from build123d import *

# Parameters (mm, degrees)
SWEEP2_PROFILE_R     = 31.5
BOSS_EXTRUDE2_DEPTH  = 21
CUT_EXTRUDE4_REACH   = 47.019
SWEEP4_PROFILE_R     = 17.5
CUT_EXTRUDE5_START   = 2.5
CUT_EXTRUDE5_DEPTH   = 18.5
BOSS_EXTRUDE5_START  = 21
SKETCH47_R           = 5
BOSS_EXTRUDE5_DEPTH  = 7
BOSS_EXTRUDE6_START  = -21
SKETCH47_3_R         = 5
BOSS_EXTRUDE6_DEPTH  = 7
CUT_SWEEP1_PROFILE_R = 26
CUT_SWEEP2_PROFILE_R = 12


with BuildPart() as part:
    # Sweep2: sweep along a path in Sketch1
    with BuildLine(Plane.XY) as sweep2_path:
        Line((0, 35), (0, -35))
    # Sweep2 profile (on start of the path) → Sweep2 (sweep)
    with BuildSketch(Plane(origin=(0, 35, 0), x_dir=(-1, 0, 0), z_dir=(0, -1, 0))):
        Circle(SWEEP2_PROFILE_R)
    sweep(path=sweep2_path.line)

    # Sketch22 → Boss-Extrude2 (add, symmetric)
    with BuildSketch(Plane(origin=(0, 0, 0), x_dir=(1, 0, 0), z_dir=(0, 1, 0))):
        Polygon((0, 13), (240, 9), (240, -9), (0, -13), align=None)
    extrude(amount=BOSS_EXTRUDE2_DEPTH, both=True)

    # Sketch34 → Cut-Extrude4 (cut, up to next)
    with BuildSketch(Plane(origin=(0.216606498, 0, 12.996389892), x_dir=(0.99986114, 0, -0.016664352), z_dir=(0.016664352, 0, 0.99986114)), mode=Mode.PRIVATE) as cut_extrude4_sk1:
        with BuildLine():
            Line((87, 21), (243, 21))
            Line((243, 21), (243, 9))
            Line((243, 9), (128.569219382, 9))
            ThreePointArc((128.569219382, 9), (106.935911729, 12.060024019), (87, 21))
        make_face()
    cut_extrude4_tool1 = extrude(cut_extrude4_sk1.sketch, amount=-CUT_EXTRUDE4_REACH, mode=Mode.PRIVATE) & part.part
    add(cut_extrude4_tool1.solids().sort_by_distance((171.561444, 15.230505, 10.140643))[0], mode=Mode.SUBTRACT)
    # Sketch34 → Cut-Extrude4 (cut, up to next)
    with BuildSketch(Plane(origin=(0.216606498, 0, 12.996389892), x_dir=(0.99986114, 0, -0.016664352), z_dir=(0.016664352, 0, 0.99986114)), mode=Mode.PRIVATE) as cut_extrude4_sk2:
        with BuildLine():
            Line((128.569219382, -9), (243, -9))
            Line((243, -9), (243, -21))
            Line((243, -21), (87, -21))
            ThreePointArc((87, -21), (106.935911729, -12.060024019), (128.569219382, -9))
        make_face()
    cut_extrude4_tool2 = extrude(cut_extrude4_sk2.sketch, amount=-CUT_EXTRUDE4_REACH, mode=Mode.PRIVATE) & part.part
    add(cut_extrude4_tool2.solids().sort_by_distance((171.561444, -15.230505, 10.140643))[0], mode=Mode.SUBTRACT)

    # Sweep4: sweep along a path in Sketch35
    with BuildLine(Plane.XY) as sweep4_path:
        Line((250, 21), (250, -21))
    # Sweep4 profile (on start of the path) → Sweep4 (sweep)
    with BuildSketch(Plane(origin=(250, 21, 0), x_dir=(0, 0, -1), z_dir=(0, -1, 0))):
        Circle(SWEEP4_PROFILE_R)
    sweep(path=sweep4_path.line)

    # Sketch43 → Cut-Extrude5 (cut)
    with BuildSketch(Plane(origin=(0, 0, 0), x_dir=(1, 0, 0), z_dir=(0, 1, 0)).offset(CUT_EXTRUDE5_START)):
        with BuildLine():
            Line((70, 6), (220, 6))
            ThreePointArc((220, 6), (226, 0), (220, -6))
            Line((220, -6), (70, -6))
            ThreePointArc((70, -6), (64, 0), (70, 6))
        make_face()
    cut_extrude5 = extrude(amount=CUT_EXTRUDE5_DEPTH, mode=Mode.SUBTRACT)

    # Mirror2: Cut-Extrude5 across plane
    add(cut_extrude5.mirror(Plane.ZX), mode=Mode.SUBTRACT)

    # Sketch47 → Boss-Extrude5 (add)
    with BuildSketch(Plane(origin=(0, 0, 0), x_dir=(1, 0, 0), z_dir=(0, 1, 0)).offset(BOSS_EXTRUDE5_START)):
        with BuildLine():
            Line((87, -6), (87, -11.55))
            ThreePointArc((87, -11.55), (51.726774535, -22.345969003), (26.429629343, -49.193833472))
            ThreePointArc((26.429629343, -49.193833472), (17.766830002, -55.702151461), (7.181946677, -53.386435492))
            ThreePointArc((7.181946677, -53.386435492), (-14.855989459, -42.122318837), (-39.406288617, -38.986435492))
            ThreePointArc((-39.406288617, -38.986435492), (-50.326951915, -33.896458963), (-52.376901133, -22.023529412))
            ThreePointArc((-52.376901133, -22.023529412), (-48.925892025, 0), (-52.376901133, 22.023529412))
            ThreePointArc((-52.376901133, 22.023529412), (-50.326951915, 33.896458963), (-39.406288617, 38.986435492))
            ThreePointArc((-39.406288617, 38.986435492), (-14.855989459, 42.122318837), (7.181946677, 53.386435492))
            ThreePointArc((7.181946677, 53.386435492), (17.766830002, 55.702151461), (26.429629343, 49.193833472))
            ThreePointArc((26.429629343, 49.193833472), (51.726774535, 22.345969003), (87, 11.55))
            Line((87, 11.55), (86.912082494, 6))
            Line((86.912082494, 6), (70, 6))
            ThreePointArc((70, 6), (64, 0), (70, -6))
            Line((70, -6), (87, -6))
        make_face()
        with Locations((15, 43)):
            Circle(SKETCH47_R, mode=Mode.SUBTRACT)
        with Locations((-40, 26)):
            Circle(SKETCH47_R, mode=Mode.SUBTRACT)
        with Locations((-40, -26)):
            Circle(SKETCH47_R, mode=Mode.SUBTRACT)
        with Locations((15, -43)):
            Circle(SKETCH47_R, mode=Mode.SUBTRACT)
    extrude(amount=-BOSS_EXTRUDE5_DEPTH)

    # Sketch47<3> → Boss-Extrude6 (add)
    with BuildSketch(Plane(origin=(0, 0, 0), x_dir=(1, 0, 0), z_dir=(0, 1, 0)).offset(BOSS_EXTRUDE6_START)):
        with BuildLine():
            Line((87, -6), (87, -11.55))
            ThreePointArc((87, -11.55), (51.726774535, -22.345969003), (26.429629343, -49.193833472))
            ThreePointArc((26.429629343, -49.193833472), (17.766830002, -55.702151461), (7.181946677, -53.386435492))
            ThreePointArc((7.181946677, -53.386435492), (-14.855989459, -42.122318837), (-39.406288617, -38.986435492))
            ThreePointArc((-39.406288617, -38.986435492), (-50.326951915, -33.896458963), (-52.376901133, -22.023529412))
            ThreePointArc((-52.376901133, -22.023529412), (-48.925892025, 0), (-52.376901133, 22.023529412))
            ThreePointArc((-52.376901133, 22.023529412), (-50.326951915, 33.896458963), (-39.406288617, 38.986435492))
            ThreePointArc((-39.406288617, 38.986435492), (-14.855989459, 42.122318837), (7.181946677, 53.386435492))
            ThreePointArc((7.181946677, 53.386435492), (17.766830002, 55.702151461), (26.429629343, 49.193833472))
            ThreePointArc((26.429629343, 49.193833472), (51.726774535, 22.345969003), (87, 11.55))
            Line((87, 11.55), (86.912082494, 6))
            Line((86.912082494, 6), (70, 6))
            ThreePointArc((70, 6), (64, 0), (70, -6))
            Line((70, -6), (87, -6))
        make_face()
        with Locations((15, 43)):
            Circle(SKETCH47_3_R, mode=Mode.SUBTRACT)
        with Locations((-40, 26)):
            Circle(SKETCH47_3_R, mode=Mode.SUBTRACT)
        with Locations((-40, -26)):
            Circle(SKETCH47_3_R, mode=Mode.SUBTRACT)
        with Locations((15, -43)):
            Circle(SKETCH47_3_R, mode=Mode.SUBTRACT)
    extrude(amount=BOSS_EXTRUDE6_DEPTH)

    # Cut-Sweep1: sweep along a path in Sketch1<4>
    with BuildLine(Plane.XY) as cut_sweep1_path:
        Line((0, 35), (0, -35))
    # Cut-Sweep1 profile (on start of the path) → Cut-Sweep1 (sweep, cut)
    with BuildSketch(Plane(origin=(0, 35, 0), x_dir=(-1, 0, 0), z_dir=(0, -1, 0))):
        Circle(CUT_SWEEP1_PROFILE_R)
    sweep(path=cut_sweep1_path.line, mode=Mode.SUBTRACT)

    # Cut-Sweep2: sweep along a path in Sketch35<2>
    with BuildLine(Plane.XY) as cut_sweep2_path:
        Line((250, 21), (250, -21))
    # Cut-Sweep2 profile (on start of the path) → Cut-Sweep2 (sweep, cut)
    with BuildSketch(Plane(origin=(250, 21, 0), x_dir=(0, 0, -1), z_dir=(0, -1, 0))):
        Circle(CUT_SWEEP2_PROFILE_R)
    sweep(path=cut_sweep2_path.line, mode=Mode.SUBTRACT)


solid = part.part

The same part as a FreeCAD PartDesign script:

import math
import FreeCAD as App
import Part
import Sketcher

doc = App.newDocument("Part")
body = doc.addObject("PartDesign::Body", "Body")

# Sketch on XZ plane
sketch1 = doc.addObject("Sketcher::SketchObject", "Sketch")
body.addObject(sketch1)
sketch1.AttachmentSupport = (doc.XZ_Plane, [""])
sketch1.MapMode = "FlatFace"
sketch1.AttachmentOffset = App.Placement(App.Vector(0, 0, -35), App.Rotation())
sketch1.addGeometry(Part.Circle(App.Vector(0, 0, 0), App.Vector(0, 0, 1), 32), False)
sketch1.addConstraint([
    Sketcher.Constraint("Coincident", 0, 3, -1, 1),
    Sketcher.Constraint("Diameter", 0, 63.0),
])

# Sketch on XY plane
sketch2 = doc.addObject("Sketcher::SketchObject", "Sketch001")
body.addObject(sketch2)
sketch2.AttachmentSupport = (doc.XY_Plane, [""])
sketch2.MapMode = "FlatFace"
sketch2.addGeometry(Part.LineSegment(App.Vector(0, 35, 0), App.Vector(0, -35, 0)), False)
sketch2.addConstraint([
    Sketcher.Constraint("Vertical", 0),
    Sketcher.Constraint("Symmetric", 0, 1, 0, 2, -1, 1),
    Sketcher.Constraint("DistanceY", 0, 2, 0, 1, 70.0),
])
doc.recompute()

additivepipe = doc.addObject("PartDesign::AdditivePipe", "AdditivePipe")
body.addObject(additivepipe)
additivepipe.Profile = sketch1
additivepipe.Spine = (sketch2, ["Edge1"])

# Sketch on XZ plane
sketch3 = doc.addObject("Sketcher::SketchObject", "Sketch002")
body.addObject(sketch3)
sketch3.AttachmentSupport = (doc.XZ_Plane, [""])
sketch3.MapMode = "FlatFace"
sketch3.addGeometry([
    Part.LineSegment(App.Vector(240, -9, 0), App.Vector(0, -13, 0)),
    Part.LineSegment(App.Vector(0, -13, 0), App.Vector(0, 13, 0)),
    Part.LineSegment(App.Vector(0, 13, 0), App.Vector(240, 9, 0)),
    Part.LineSegment(App.Vector(240, 9, 0), App.Vector(240, -9, 0)),
], False)
sketch3.addConstraint([
    Sketcher.Constraint("Coincident", 0, 2, 1, 1),
    Sketcher.Constraint("Coincident", 1, 2, 2, 1),
    Sketcher.Constraint("Coincident", 2, 2, 3, 1),
    Sketcher.Constraint("Coincident", 3, 2, 0, 1),
    Sketcher.Constraint("Vertical", 1),
    Sketcher.Constraint("Vertical", 3),
    Sketcher.Constraint("Symmetric", 0, 2, 1, 2, -1, 1),
    Sketcher.Constraint("Equal", 0, 2),
    Sketcher.Constraint("DistanceY", 1, 1, 1, 2, 26.0),
    Sketcher.Constraint("DistanceY", 3, 2, 3, 1, 18.0),
    Sketcher.Constraint("DistanceX", -1, 1, 2, 2, 240.0),
])
pad1 = doc.addObject("PartDesign::Pad", "Pad")
body.addObject(pad1)
pad1.Profile = sketch3
pad1.Length = 42
pad1.Midplane = True

# Sketch on an angled plane
sketch4 = doc.addObject("Sketcher::SketchObject", "Sketch003")
body.addObject(sketch4)
sketch4.Placement = App.Placement(App.Vector(0.216606, 0, 12.99639), App.Rotation(App.Vector(0.99986114, 0, -0.016664352), App.Vector(0, 1, 0), App.Vector(0.016664352, 0, 0.99986114), "ZXY"))
sketch4.addGeometry([
    Part.LineSegment(App.Vector(243, 21, 0), App.Vector(87, 21, 0)),
    Part.ArcOfCircle(Part.Circle(App.Vector(129, 87, 0), App.Vector(0, 0, 1), 78), math.radians(-122), math.radians(-90)),
    Part.LineSegment(App.Vector(129, 9, 0), App.Vector(243, 9, 0)),
    Part.LineSegment(App.Vector(243, 9, 0), App.Vector(243, 21, 0)),
], False)
sketch4.addConstraint([
    Sketcher.Constraint("Coincident", 0, 2, 1, 1),
    Sketcher.Constraint("Tangent", 1, 2, 2, 1),
    Sketcher.Constraint("Coincident", 2, 2, 3, 1),
    Sketcher.Constraint("Coincident", 3, 2, 0, 1),
    Sketcher.Constraint("Horizontal", 0),
    Sketcher.Constraint("Horizontal", 2),
    Sketcher.Constraint("Vertical", 3),
    Sketcher.Constraint("Radius", 1, 78.0),
    Sketcher.Constraint("DistanceX", 0, 2, 0, 1, 156.0),
    Sketcher.Constraint("DistanceY", 3, 1, 3, 2, 12.0),
    Sketcher.Constraint("DistanceY", -1, 1, 1, 3, 87.0),
    Sketcher.Constraint("DistanceX", -1, 1, 0, 2, 87.0),
])
pocket1 = doc.addObject("PartDesign::Pocket", "Pocket")
body.addObject(pocket1)
pocket1.Profile = sketch4
pocket1.Type = "UpToFirst"

# Sketch on an angled plane
sketch5 = doc.addObject("Sketcher::SketchObject", "Sketch004")
body.addObject(sketch5)
sketch5.Placement = App.Placement(App.Vector(0.216606, 0, 12.99639), App.Rotation(App.Vector(0.99986114, 0, -0.016664352), App.Vector(0, 1, 0), App.Vector(0.016664352, 0, 0.99986114), "ZXY"))
sketch5.addGeometry([
    Part.LineSegment(App.Vector(243, -9, 0), App.Vector(129, -9, 0)),
    Part.ArcOfCircle(Part.Circle(App.Vector(129, -87, 0), App.Vector(0, 0, 1), 78), math.radians(90), math.radians(122)),
    Part.LineSegment(App.Vector(87, -21, 0), App.Vector(243, -21, 0)),
    Part.LineSegment(App.Vector(243, -21, 0), App.Vector(243, -9, 0)),
], False)
sketch5.addConstraint([
    Sketcher.Constraint("Tangent", 0, 2, 1, 1),
    Sketcher.Constraint("Coincident", 1, 2, 2, 1),
    Sketcher.Constraint("Coincident", 2, 2, 3, 1),
    Sketcher.Constraint("Coincident", 3, 2, 0, 1),
    Sketcher.Constraint("Horizontal", 0),
    Sketcher.Constraint("Horizontal", 2),
    Sketcher.Constraint("Vertical", 3),
    Sketcher.Constraint("Radius", 1, 78.0),
    Sketcher.Constraint("DistanceX", 2, 1, 2, 2, 156.0),
    Sketcher.Constraint("DistanceY", 3, 1, 3, 2, 12.0),
    Sketcher.Constraint("DistanceY", 1, 3, -1, 1, 87.0),
    Sketcher.Constraint("DistanceX", -1, 1, 1, 2, 87.0),
])
pocket2 = doc.addObject("PartDesign::Pocket", "Pocket001")
body.addObject(pocket2)
pocket2.Profile = sketch5
pocket2.Type = "UpToFirst"

# Sketch on XZ plane
sketch6 = doc.addObject("Sketcher::SketchObject", "Sketch005")
body.addObject(sketch6)
sketch6.AttachmentSupport = (doc.XZ_Plane, [""])
sketch6.MapMode = "FlatFace"
sketch6.AttachmentOffset = App.Placement(App.Vector(0, 0, -21), App.Rotation())
sketch6.addGeometry(Part.Circle(App.Vector(250, 0, 0), App.Vector(0, 0, 1), 18), False)
sketch6.addConstraint([
    Sketcher.Constraint("PointOnObject", 0, 3, -1),
    Sketcher.Constraint("Diameter", 0, 35.0),
    Sketcher.Constraint("DistanceX", -1, 1, 0, 3, 250.0),
])

# Sketch on XY plane
sketch7 = doc.addObject("Sketcher::SketchObject", "Sketch006")
body.addObject(sketch7)
sketch7.AttachmentSupport = (doc.XY_Plane, [""])
sketch7.MapMode = "FlatFace"
sketch7.addGeometry(Part.LineSegment(App.Vector(250, 21, 0), App.Vector(250, -21, 0)), False)
sketch7.addConstraint([
    Sketcher.Constraint("Vertical", 0),
    Sketcher.Constraint("DistanceY", 0, 2, 0, 1, 42.0),
    Sketcher.Constraint("DistanceX", -1, 1, 0, 1, 250.0),
    Sketcher.Constraint("DistanceY", -1, 1, 0, 1, 21.0),
])
doc.recompute()

additivepipe2 = doc.addObject("PartDesign::AdditivePipe", "AdditivePipe001")
body.addObject(additivepipe2)
additivepipe2.Profile = sketch6
additivepipe2.Spine = (sketch7, ["Edge1"])

# Sketch on XZ plane
sketch8 = doc.addObject("Sketcher::SketchObject", "Sketch007")
body.addObject(sketch8)
sketch8.AttachmentSupport = (doc.XZ_Plane, [""])
sketch8.MapMode = "FlatFace"
sketch8.AttachmentOffset = App.Placement(App.Vector(0, 0, -2.5), App.Rotation())
sketch8.addGeometry([
    Part.LineSegment(App.Vector(220, -6, 0), App.Vector(70, -6, 0)),
    Part.ArcOfCircle(Part.Circle(App.Vector(70, 0, 0), App.Vector(0, 0, 1), 6), math.radians(90), math.radians(270)),
    Part.LineSegment(App.Vector(70, 6, 0), App.Vector(220, 6, 0)),
    Part.ArcOfCircle(Part.Circle(App.Vector(220, 0, 0), App.Vector(0, 0, 1), 6), math.radians(-90), math.radians(90)),
], False)
sketch8.addConstraint([
    Sketcher.Constraint("Tangent", 0, 2, 1, 2),
    Sketcher.Constraint("Tangent", 1, 1, 2, 1),
    Sketcher.Constraint("Tangent", 2, 2, 3, 2),
    Sketcher.Constraint("Tangent", 3, 1, 0, 1),
    Sketcher.Constraint("Horizontal", 0),
    Sketcher.Constraint("Horizontal", 2),
    Sketcher.Constraint("PointOnObject", 1, 3, -1),
    Sketcher.Constraint("Radius", 1, 6.0),
    Sketcher.Constraint("DistanceX", 0, 2, 0, 1, 150.0),
    Sketcher.Constraint("DistanceX", -1, 1, 1, 3, 70.0),
])
pocket3 = doc.addObject("PartDesign::Pocket", "Pocket002")
body.addObject(pocket3)
pocket3.Profile = sketch8
pocket3.Length = 18.5
doc.recompute()

mirrored = doc.addObject("PartDesign::Mirrored", "Mirrored")
body.addObject(mirrored)
mirrored.Originals = [pocket3]
mirrored.MirrorPlane = (doc.XZ_Plane, [""])
body.Tip = mirrored

# Sketch on XZ plane
sketch9 = doc.addObject("Sketcher::SketchObject", "Sketch008")
body.addObject(sketch9)
sketch9.AttachmentSupport = (doc.XZ_Plane, [""])
sketch9.MapMode = "FlatFace"
sketch9.AttachmentOffset = App.Placement(App.Vector(0, 0, -21), App.Rotation())
sketch9.addGeometry([
    Part.LineSegment(App.Vector(87, 12, 0), App.Vector(87, 6, 0)),  # 0
    Part.LineSegment(App.Vector(87, 6, 0), App.Vector(70, 6, 0)),  # 1
    Part.ArcOfCircle(Part.Circle(App.Vector(70, 0, 0), App.Vector(0, 0, 1), 6), math.radians(90), math.radians(270)),  # 2
    Part.LineSegment(App.Vector(70, -6, 0), App.Vector(87, -6, 0)),  # 3
    Part.LineSegment(App.Vector(87, -6, 0), App.Vector(87, -12, 0)),  # 4
    Part.ArcOfCircle(Part.Circle(App.Vector(90, -83, 0), App.Vector(0, 0, 1), 72), math.radians(92), math.radians(152)),  # 5
    Part.ArcOfCircle(Part.Circle(App.Vector(15, -43, 0), App.Vector(0, 0, 1), 13), math.radians(-127), math.radians(-28)),  # 6
    Part.ArcOfCircle(Part.Circle(App.Vector(-36, -111, 0), App.Vector(0, 0, 1), 72), math.radians(53), math.radians(93)),  # 7
    Part.ArcOfCircle(Part.Circle(App.Vector(-40, -26, 0), App.Vector(0, 0, 1), 13), math.radians(162), math.radians(273)),  # 8
    Part.ArcOfCircle(Part.Circle(App.Vector(-121, 0, 0), App.Vector(0, 0, 1), 72), math.radians(-18), math.radians(18)),  # 9
    Part.ArcOfCircle(Part.Circle(App.Vector(-40, 26, 0), App.Vector(0, 0, 1), 13), math.radians(87), math.radians(198)),  # 10
    Part.ArcOfCircle(Part.Circle(App.Vector(-36, 111, 0), App.Vector(0, 0, 1), 72), math.radians(-93), math.radians(-53)),  # 11
    Part.ArcOfCircle(Part.Circle(App.Vector(15, 43, 0), App.Vector(0, 0, 1), 13), math.radians(28), math.radians(127)),  # 12
    Part.ArcOfCircle(Part.Circle(App.Vector(90, 83, 0), App.Vector(0, 0, 1), 72), math.radians(-152), math.radians(-92)),  # 13
    Part.Circle(App.Vector(15, 43, 0), App.Vector(0, 0, 1), 5),  # 14
    Part.Circle(App.Vector(-40, 26, 0), App.Vector(0, 0, 1), 5),  # 15
    Part.Circle(App.Vector(15, -43, 0), App.Vector(0, 0, 1), 5),  # 16
    Part.Circle(App.Vector(-40, -26, 0), App.Vector(0, 0, 1), 5),  # 17
], False)
sketch9.addConstraint([
    Sketcher.Constraint("Coincident", 0, 2, 1, 1),
    Sketcher.Constraint("Tangent", 1, 2, 2, 1),
    Sketcher.Constraint("Tangent", 2, 2, 3, 1),
    Sketcher.Constraint("Coincident", 3, 2, 4, 1),
    Sketcher.Constraint("Coincident", 4, 2, 5, 1),
    Sketcher.Constraint("Tangent", 5, 2, 6, 2),
    Sketcher.Constraint("Tangent", 6, 1, 7, 1),
    Sketcher.Constraint("Tangent", 7, 2, 8, 2),
    Sketcher.Constraint("Tangent", 8, 1, 9, 1),
    Sketcher.Constraint("Tangent", 9, 2, 10, 2),
    Sketcher.Constraint("Tangent", 10, 1, 11, 1),
    Sketcher.Constraint("Tangent", 11, 2, 12, 2),
    Sketcher.Constraint("Tangent", 12, 1, 13, 1),
    Sketcher.Constraint("Coincident", 13, 2, 0, 1),
    Sketcher.Constraint("Vertical", 0),
    Sketcher.Constraint("Horizontal", 1),
    Sketcher.Constraint("Horizontal", 3),
    Sketcher.Constraint("Coincident", 14, 3, 12, 3),
    Sketcher.Constraint("Coincident", 15, 3, 10, 3),
    Sketcher.Constraint("Coincident", 16, 3, 6, 3),
    Sketcher.Constraint("Coincident", 17, 3, 8, 3),
    Sketcher.Constraint("Equal", 5, 7),
    Sketcher.Constraint("Equal", 6, 8),
    Sketcher.Constraint("Equal", 7, 9),
    Sketcher.Constraint("Equal", 8, 10),
    Sketcher.Constraint("Equal", 9, 11),
    Sketcher.Constraint("Equal", 10, 12),
    Sketcher.Constraint("Equal", 11, 13),
    Sketcher.Constraint("Equal", 14, 15),
    Sketcher.Constraint("Equal", 15, 16),
    Sketcher.Constraint("Equal", 16, 17),
    Sketcher.Constraint("Symmetric", 8, 3, 10, 3, -1),
    Sketcher.Constraint("Symmetric", 6, 3, 12, 3, -1),
    Sketcher.Constraint("Symmetric", 4, 2, 13, 2, -1),
    Sketcher.Constraint("PointOnObject", 2, 3, -1),
    Sketcher.Constraint("Diameter", 14, 10.0),
    Sketcher.Constraint("Radius", 2, 6.0),
    Sketcher.Constraint("Radius", 5, 72.0),
    Sketcher.Constraint("Radius", 6, 13.0),
    Sketcher.Constraint("DistanceX", 1, 2, 1, 1, 17.0),
    Sketcher.Constraint("DistanceX", -1, 1, 2, 3, 70.0),
    Sketcher.Constraint("DistanceX", -1, 1, 6, 3, 15.0),
    Sketcher.Constraint("DistanceY", 6, 3, -1, 1, 43.0),
    Sketcher.Constraint("DistanceX", 8, 3, -1, 1, 40.0),
    Sketcher.Constraint("DistanceY", 8, 3, -1, 1, 26.0),
    Sketcher.Constraint("DistanceY", 0, 2, 0, 1, 5.55),
    Sketcher.Constraint("DistanceX", 3, 1, 3, 2, 16.912082),
])
pad2 = doc.addObject("PartDesign::Pad", "Pad001")
body.addObject(pad2)
pad2.Profile = sketch9
pad2.Length = 7

# Sketch on XZ plane
sketch10 = doc.addObject("Sketcher::SketchObject", "Sketch009")
body.addObject(sketch10)
sketch10.AttachmentSupport = (doc.XZ_Plane, [""])
sketch10.MapMode = "FlatFace"
sketch10.AttachmentOffset = App.Placement(App.Vector(0, 0, 21), App.Rotation())
sketch10.addGeometry([
    Part.LineSegment(App.Vector(87, 12, 0), App.Vector(87, 6, 0)),  # 0
    Part.LineSegment(App.Vector(87, 6, 0), App.Vector(70, 6, 0)),  # 1
    Part.ArcOfCircle(Part.Circle(App.Vector(70, 0, 0), App.Vector(0, 0, 1), 6), math.radians(90), math.radians(270)),  # 2
    Part.LineSegment(App.Vector(70, -6, 0), App.Vector(87, -6, 0)),  # 3
    Part.LineSegment(App.Vector(87, -6, 0), App.Vector(87, -12, 0)),  # 4
    Part.ArcOfCircle(Part.Circle(App.Vector(90, -83, 0), App.Vector(0, 0, 1), 72), math.radians(92), math.radians(152)),  # 5
    Part.ArcOfCircle(Part.Circle(App.Vector(15, -43, 0), App.Vector(0, 0, 1), 13), math.radians(-127), math.radians(-28)),  # 6
    Part.ArcOfCircle(Part.Circle(App.Vector(-36, -111, 0), App.Vector(0, 0, 1), 72), math.radians(53), math.radians(93)),  # 7
    Part.ArcOfCircle(Part.Circle(App.Vector(-40, -26, 0), App.Vector(0, 0, 1), 13), math.radians(162), math.radians(273)),  # 8
    Part.ArcOfCircle(Part.Circle(App.Vector(-121, 0, 0), App.Vector(0, 0, 1), 72), math.radians(-18), math.radians(18)),  # 9
    Part.ArcOfCircle(Part.Circle(App.Vector(-40, 26, 0), App.Vector(0, 0, 1), 13), math.radians(87), math.radians(198)),  # 10
    Part.ArcOfCircle(Part.Circle(App.Vector(-36, 111, 0), App.Vector(0, 0, 1), 72), math.radians(-93), math.radians(-53)),  # 11
    Part.ArcOfCircle(Part.Circle(App.Vector(15, 43, 0), App.Vector(0, 0, 1), 13), math.radians(28), math.radians(127)),  # 12
    Part.ArcOfCircle(Part.Circle(App.Vector(90, 83, 0), App.Vector(0, 0, 1), 72), math.radians(-152), math.radians(-92)),  # 13
    Part.Circle(App.Vector(15, 43, 0), App.Vector(0, 0, 1), 5),  # 14
    Part.Circle(App.Vector(-40, 26, 0), App.Vector(0, 0, 1), 5),  # 15
    Part.Circle(App.Vector(15, -43, 0), App.Vector(0, 0, 1), 5),  # 16
    Part.Circle(App.Vector(-40, -26, 0), App.Vector(0, 0, 1), 5),  # 17
], False)
sketch10.addConstraint([
    Sketcher.Constraint("Coincident", 0, 2, 1, 1),
    Sketcher.Constraint("Tangent", 1, 2, 2, 1),
    Sketcher.Constraint("Tangent", 2, 2, 3, 1),
    Sketcher.Constraint("Coincident", 3, 2, 4, 1),
    Sketcher.Constraint("Coincident", 4, 2, 5, 1),
    Sketcher.Constraint("Tangent", 5, 2, 6, 2),
    Sketcher.Constraint("Tangent", 6, 1, 7, 1),
    Sketcher.Constraint("Tangent", 7, 2, 8, 2),
    Sketcher.Constraint("Tangent", 8, 1, 9, 1),
    Sketcher.Constraint("Tangent", 9, 2, 10, 2),
    Sketcher.Constraint("Tangent", 10, 1, 11, 1),
    Sketcher.Constraint("Tangent", 11, 2, 12, 2),
    Sketcher.Constraint("Tangent", 12, 1, 13, 1),
    Sketcher.Constraint("Coincident", 13, 2, 0, 1),
    Sketcher.Constraint("Vertical", 0),
    Sketcher.Constraint("Horizontal", 1),
    Sketcher.Constraint("Horizontal", 3),
    Sketcher.Constraint("Coincident", 14, 3, 12, 3),
    Sketcher.Constraint("Coincident", 15, 3, 10, 3),
    Sketcher.Constraint("Coincident", 16, 3, 6, 3),
    Sketcher.Constraint("Coincident", 17, 3, 8, 3),
    Sketcher.Constraint("Equal", 5, 7),
    Sketcher.Constraint("Equal", 6, 8),
    Sketcher.Constraint("Equal", 7, 9),
    Sketcher.Constraint("Equal", 8, 10),
    Sketcher.Constraint("Equal", 9, 11),
    Sketcher.Constraint("Equal", 10, 12),
    Sketcher.Constraint("Equal", 11, 13),
    Sketcher.Constraint("Equal", 14, 15),
    Sketcher.Constraint("Equal", 15, 16),
    Sketcher.Constraint("Equal", 16, 17),
    Sketcher.Constraint("Symmetric", 8, 3, 10, 3, -1),
    Sketcher.Constraint("Symmetric", 6, 3, 12, 3, -1),
    Sketcher.Constraint("Symmetric", 4, 2, 13, 2, -1),
    Sketcher.Constraint("PointOnObject", 2, 3, -1),
    Sketcher.Constraint("Diameter", 14, 10.0),
    Sketcher.Constraint("Radius", 2, 6.0),
    Sketcher.Constraint("Radius", 5, 72.0),
    Sketcher.Constraint("Radius", 6, 13.0),
    Sketcher.Constraint("DistanceX", 1, 2, 1, 1, 17.0),
    Sketcher.Constraint("DistanceX", -1, 1, 2, 3, 70.0),
    Sketcher.Constraint("DistanceX", -1, 1, 6, 3, 15.0),
    Sketcher.Constraint("DistanceY", 6, 3, -1, 1, 43.0),
    Sketcher.Constraint("DistanceX", 8, 3, -1, 1, 40.0),
    Sketcher.Constraint("DistanceY", 8, 3, -1, 1, 26.0),
    Sketcher.Constraint("DistanceY", 0, 2, 0, 1, 5.55),
    Sketcher.Constraint("DistanceX", 3, 1, 3, 2, 16.912082),
])
pad3 = doc.addObject("PartDesign::Pad", "Pad002")
body.addObject(pad3)
pad3.Profile = sketch10
pad3.Length = 7
pad3.Reversed = True

# Sketch on XZ plane
sketch11 = doc.addObject("Sketcher::SketchObject", "Sketch010")
body.addObject(sketch11)
sketch11.AttachmentSupport = (doc.XZ_Plane, [""])
sketch11.MapMode = "FlatFace"
sketch11.AttachmentOffset = App.Placement(App.Vector(0, 0, -35), App.Rotation())
sketch11.addGeometry(Part.Circle(App.Vector(0, 0, 0), App.Vector(0, 0, 1), 26), False)
sketch11.addConstraint([
    Sketcher.Constraint("Coincident", 0, 3, -1, 1),
    Sketcher.Constraint("Diameter", 0, 52.0),
])

# Sketch on XY plane
sketch12 = doc.addObject("Sketcher::SketchObject", "Sketch011")
body.addObject(sketch12)
sketch12.AttachmentSupport = (doc.XY_Plane, [""])
sketch12.MapMode = "FlatFace"
sketch12.addGeometry(Part.LineSegment(App.Vector(0, 35, 0), App.Vector(0, -35, 0)), False)
sketch12.addConstraint([
    Sketcher.Constraint("Vertical", 0),
    Sketcher.Constraint("Symmetric", 0, 1, 0, 2, -1, 1),
    Sketcher.Constraint("DistanceY", 0, 2, 0, 1, 70.0),
])
doc.recompute()

subtractivepipe = doc.addObject("PartDesign::SubtractivePipe", "SubtractivePipe")
body.addObject(subtractivepipe)
subtractivepipe.Profile = sketch11
subtractivepipe.Spine = (sketch12, ["Edge1"])

# Sketch on XZ plane
sketch13 = doc.addObject("Sketcher::SketchObject", "Sketch012")
body.addObject(sketch13)
sketch13.AttachmentSupport = (doc.XZ_Plane, [""])
sketch13.MapMode = "FlatFace"
sketch13.AttachmentOffset = App.Placement(App.Vector(0, 0, -21), App.Rotation())
sketch13.addGeometry(Part.Circle(App.Vector(250, 0, 0), App.Vector(0, 0, 1), 12), False)
sketch13.addConstraint([
    Sketcher.Constraint("PointOnObject", 0, 3, -1),
    Sketcher.Constraint("Diameter", 0, 24.0),
    Sketcher.Constraint("DistanceX", -1, 1, 0, 3, 250.0),
])

# Sketch on XY plane
sketch14 = doc.addObject("Sketcher::SketchObject", "Sketch013")
body.addObject(sketch14)
sketch14.AttachmentSupport = (doc.XY_Plane, [""])
sketch14.MapMode = "FlatFace"
sketch14.addGeometry(Part.LineSegment(App.Vector(250, 21, 0), App.Vector(250, -21, 0)), False)
sketch14.addConstraint([
    Sketcher.Constraint("Vertical", 0),
    Sketcher.Constraint("DistanceY", 0, 2, 0, 1, 42.0),
    Sketcher.Constraint("DistanceX", -1, 1, 0, 1, 250.0),
    Sketcher.Constraint("DistanceY", -1, 1, 0, 1, 21.0),
])
doc.recompute()

subtractivepipe2 = doc.addObject("PartDesign::SubtractivePipe", "SubtractivePipe001")
body.addObject(subtractivepipe2)
subtractivepipe2.Profile = sketch13
subtractivepipe2.Spine = (sketch14, ["Edge1"])

doc.recompute()
